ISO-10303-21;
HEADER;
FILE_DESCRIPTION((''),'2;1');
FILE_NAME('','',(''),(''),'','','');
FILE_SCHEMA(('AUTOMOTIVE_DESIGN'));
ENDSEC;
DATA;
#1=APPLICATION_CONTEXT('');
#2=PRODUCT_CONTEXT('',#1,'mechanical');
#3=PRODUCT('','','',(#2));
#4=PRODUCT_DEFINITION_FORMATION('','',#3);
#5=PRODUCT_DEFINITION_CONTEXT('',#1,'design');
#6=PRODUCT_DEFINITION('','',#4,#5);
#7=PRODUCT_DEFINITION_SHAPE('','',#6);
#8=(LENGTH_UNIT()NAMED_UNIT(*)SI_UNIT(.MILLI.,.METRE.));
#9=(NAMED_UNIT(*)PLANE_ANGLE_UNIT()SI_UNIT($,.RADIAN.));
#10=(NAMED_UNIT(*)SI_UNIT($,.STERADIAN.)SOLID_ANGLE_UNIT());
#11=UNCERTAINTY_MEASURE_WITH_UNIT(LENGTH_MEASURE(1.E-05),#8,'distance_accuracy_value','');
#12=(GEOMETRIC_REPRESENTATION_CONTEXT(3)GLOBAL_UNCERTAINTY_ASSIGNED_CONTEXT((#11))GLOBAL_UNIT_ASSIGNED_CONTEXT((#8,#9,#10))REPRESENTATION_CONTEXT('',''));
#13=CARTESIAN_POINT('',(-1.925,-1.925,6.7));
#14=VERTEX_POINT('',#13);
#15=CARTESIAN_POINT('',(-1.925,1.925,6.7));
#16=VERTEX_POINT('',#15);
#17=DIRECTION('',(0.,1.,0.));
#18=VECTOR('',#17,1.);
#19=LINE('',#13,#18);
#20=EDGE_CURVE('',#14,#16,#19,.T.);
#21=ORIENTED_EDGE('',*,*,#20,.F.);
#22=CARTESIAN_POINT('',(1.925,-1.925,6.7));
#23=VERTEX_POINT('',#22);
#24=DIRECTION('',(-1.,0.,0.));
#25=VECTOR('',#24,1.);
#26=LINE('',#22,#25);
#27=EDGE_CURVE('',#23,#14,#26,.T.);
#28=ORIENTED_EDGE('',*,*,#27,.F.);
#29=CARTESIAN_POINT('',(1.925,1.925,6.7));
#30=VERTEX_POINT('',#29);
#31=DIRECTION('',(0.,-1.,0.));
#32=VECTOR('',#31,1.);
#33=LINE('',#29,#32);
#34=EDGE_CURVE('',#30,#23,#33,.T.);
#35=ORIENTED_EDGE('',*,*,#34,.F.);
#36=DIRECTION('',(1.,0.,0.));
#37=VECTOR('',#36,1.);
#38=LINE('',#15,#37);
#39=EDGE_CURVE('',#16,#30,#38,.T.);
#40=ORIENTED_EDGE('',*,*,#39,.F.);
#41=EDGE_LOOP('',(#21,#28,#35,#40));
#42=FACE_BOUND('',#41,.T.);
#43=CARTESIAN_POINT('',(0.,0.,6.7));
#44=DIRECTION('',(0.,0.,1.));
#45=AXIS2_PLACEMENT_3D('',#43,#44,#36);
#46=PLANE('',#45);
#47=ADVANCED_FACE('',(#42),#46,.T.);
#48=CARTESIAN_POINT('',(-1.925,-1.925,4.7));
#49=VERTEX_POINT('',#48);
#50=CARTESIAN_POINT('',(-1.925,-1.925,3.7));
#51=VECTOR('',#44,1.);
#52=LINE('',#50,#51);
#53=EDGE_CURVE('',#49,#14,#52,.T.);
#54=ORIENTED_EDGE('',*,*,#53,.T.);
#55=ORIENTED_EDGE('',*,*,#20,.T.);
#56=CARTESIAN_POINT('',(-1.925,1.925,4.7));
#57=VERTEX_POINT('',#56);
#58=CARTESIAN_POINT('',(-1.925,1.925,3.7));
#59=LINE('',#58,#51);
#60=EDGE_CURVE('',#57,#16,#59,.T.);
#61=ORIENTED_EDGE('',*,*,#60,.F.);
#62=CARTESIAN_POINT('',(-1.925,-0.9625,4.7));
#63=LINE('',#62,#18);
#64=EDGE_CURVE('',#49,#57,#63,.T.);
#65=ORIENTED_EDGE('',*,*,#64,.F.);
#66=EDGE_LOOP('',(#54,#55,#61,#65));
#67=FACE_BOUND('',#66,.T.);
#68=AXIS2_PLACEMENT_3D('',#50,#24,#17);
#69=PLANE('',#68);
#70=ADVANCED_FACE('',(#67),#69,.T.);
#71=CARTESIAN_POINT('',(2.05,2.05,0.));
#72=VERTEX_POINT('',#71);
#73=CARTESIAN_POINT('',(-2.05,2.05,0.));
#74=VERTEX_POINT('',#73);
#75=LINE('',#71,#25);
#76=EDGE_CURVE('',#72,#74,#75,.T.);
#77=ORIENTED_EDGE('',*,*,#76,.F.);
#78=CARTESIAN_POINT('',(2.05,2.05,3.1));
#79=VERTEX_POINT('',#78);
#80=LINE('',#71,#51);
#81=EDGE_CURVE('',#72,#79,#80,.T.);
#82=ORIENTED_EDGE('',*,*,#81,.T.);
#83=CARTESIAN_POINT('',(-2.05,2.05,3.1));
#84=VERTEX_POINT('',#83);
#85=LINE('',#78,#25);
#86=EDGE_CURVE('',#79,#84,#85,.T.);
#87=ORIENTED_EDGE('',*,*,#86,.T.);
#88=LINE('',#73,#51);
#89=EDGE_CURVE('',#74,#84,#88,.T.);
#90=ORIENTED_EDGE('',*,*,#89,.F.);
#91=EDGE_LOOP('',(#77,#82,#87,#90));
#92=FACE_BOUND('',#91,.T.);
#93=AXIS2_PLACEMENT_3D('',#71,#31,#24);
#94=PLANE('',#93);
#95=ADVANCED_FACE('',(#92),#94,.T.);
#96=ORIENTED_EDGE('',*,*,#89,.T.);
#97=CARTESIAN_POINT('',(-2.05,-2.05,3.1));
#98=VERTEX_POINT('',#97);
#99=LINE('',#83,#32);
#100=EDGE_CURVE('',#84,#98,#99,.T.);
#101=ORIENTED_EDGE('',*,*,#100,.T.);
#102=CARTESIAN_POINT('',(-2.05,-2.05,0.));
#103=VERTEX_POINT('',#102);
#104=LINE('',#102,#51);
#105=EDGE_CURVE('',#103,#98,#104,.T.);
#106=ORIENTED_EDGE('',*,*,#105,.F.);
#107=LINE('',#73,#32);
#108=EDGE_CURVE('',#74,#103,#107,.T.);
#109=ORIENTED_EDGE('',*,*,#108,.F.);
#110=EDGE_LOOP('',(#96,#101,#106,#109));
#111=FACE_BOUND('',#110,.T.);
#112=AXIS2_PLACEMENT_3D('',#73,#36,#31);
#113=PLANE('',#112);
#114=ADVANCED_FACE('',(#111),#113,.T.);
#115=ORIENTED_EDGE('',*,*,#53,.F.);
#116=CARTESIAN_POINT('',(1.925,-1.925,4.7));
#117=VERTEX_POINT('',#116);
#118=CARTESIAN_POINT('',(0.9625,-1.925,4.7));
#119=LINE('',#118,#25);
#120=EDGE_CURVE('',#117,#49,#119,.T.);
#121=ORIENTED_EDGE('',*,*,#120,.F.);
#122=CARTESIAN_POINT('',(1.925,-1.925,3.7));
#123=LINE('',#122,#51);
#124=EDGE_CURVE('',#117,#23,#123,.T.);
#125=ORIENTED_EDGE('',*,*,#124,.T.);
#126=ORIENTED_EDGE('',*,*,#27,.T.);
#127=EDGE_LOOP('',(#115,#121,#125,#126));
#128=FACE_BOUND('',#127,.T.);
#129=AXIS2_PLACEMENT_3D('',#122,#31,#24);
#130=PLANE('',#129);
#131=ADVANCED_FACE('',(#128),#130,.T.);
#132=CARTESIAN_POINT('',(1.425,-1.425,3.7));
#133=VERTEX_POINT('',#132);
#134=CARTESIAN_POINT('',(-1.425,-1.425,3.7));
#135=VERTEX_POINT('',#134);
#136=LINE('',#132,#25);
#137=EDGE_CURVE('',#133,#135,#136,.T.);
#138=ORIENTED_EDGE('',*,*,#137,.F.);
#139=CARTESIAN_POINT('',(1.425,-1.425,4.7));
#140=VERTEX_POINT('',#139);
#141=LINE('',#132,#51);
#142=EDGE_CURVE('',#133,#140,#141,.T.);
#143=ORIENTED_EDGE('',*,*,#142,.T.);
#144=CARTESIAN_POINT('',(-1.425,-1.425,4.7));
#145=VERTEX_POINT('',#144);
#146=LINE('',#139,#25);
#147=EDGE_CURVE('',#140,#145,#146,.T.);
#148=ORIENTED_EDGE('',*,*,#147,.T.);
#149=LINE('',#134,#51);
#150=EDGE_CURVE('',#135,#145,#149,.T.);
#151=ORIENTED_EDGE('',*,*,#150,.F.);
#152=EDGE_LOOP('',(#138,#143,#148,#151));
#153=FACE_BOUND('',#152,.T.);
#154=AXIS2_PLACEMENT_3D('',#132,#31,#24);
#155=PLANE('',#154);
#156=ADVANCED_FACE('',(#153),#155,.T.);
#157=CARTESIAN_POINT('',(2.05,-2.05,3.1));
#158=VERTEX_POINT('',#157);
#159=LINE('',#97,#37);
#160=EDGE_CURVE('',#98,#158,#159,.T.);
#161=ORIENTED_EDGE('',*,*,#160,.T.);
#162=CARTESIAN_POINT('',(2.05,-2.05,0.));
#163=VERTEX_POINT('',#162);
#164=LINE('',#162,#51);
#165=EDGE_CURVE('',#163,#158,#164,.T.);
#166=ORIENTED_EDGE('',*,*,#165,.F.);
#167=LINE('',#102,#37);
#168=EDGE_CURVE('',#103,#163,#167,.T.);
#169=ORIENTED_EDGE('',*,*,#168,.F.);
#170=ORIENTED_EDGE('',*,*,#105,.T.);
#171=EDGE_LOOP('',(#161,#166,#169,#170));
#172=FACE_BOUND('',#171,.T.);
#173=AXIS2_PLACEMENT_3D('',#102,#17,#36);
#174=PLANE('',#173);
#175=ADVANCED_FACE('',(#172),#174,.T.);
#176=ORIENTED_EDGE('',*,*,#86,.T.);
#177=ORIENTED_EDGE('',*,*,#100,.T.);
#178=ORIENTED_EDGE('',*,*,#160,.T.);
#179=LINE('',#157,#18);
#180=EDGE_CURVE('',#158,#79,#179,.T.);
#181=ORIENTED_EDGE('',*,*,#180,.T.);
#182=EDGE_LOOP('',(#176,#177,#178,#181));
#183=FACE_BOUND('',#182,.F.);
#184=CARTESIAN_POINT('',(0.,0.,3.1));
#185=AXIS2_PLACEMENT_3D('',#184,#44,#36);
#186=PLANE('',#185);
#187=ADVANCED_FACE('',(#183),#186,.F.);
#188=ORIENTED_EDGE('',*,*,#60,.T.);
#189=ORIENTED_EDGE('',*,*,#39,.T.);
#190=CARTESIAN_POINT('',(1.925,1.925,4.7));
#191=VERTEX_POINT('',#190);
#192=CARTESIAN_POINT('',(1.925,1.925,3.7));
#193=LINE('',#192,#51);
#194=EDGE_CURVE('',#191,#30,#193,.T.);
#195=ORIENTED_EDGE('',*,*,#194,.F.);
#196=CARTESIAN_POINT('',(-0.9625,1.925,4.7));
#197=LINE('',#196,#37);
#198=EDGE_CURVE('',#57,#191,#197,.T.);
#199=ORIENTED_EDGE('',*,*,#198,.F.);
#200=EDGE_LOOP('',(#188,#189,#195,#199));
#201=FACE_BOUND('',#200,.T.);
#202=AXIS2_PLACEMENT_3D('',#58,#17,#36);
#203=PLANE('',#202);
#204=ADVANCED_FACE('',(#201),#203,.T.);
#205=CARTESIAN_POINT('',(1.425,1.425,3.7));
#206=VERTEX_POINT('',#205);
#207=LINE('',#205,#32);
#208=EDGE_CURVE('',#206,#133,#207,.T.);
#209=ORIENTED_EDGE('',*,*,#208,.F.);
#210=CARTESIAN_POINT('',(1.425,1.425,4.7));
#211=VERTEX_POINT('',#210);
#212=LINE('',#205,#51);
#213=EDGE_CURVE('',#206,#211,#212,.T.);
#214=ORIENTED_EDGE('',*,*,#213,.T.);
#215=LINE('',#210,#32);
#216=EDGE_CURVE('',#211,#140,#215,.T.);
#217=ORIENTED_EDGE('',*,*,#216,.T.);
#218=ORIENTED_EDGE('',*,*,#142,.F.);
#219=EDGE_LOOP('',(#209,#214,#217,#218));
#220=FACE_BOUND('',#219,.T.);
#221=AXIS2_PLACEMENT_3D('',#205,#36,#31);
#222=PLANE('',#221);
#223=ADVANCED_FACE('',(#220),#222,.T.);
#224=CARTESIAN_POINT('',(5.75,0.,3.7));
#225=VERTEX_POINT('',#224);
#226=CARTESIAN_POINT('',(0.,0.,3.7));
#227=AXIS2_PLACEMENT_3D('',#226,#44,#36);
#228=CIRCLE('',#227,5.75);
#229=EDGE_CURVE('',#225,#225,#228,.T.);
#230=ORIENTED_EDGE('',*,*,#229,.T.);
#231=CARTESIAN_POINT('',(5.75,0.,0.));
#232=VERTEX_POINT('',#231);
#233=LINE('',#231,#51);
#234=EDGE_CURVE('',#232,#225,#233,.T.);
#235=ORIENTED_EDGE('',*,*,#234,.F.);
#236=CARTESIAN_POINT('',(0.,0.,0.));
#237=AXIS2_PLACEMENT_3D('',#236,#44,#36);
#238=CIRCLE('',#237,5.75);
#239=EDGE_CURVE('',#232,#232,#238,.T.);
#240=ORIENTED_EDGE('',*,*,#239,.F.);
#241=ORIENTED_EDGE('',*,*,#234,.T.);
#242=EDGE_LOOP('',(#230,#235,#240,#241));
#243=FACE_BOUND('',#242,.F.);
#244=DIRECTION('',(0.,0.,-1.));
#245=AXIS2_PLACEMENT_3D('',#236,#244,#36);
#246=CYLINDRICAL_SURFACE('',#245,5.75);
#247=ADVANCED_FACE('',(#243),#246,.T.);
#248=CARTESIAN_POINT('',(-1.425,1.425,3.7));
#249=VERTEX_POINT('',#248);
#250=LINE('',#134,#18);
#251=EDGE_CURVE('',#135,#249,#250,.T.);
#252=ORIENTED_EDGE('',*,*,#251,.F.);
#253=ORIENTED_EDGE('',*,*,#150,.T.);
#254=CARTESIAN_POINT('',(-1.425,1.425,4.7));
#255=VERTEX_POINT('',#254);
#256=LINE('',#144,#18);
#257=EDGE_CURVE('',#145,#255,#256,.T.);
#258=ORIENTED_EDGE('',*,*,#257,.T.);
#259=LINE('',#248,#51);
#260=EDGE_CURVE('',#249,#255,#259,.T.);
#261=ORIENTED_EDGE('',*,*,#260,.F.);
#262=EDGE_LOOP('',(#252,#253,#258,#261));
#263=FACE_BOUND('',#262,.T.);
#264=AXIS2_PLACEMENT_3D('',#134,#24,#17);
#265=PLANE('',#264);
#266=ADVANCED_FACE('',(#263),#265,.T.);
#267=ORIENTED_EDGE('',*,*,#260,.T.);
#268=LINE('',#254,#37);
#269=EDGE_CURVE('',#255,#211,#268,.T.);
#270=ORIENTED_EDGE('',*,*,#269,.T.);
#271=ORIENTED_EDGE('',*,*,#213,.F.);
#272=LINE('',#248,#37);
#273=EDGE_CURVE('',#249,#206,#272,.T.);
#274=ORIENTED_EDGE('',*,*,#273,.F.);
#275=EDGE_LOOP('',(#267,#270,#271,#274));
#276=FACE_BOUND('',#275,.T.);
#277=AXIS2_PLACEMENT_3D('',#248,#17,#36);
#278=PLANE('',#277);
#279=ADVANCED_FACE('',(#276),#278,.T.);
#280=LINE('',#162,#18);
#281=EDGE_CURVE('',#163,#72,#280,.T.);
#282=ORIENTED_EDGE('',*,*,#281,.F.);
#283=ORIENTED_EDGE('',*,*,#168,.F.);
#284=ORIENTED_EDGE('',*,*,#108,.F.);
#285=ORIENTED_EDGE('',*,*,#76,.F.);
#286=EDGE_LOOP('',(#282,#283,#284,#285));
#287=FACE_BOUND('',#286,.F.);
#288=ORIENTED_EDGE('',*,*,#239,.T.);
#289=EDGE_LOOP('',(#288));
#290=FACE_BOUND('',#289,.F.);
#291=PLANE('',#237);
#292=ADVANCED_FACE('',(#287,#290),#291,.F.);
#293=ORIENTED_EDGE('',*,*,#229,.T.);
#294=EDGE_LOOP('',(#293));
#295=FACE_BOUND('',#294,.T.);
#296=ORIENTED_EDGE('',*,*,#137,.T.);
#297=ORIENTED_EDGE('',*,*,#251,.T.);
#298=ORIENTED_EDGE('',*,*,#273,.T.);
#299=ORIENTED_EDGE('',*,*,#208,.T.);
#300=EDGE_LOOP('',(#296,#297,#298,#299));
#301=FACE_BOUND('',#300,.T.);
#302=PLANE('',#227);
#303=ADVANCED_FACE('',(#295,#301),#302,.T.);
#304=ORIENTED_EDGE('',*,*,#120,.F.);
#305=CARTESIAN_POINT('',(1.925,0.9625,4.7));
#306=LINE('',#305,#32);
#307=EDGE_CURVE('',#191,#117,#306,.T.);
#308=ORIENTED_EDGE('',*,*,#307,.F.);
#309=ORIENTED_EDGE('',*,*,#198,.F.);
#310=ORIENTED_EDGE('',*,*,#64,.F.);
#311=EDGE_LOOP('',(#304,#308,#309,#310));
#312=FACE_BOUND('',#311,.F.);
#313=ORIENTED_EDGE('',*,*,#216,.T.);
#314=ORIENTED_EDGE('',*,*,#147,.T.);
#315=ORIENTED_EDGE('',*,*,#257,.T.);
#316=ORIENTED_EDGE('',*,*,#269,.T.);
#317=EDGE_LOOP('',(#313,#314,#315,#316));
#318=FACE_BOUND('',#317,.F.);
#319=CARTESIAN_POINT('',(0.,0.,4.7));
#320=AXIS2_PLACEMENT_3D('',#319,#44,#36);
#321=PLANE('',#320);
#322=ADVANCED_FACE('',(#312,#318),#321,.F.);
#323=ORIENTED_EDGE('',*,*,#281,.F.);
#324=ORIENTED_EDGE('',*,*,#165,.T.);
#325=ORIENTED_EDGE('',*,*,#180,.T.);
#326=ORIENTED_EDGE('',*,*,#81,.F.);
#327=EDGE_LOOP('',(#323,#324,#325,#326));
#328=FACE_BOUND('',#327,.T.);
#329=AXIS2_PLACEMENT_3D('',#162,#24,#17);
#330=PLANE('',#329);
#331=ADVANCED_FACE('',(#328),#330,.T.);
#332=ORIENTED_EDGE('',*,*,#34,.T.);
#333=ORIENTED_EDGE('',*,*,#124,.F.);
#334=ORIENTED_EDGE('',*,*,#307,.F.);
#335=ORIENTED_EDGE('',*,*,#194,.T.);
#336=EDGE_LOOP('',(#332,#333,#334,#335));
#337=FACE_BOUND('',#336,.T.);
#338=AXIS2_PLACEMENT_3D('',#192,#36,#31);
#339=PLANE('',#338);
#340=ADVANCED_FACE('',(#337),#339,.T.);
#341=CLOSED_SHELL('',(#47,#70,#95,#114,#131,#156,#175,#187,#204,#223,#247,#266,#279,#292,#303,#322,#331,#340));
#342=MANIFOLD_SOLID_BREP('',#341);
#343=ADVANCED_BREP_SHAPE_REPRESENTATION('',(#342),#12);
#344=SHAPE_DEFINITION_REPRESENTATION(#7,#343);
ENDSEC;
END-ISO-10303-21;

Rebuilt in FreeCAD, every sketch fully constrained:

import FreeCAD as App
import Part
import Sketcher


def add_polygon(sketch, points):
    """Adds a closed chain of lines whose ends are joined by coincident constraints."""
    first, n = sketch.GeometryCount, len(points)
    for a, b in zip(points, points[1:] + points[:1]):
        sketch.addGeometry(Part.LineSegment(App.Vector(*a, 0), App.Vector(*b, 0)), False)
    for i in range(n):
        sketch.addConstraint(Sketcher.Constraint("Coincident", first + i, 2, first + (i + 1) % n, 1))

doc = App.newDocument("Part")
params = doc.addObject("Spreadsheet::Sheet", "Params")
for row, (alias, value) in enumerate([
    ("sketch1_diameter", "11.5 mm"),
    ("pad1_length", "3.7 mm"),
    ("sketch2_width", "4.1 mm"),
    ("pocket1_length", "3.1 mm"),
    ("sketch3_width", "3.85 mm"),
    ("pad2_length", "3 mm"),
    ("sketch4_width", "4.1 mm"),
    ("sketch4_width2", "2.85 mm"),
    ("pocket2_length", "1 mm"),
], start=1):
    params.set(f"A{row}", alias)
    params.set(f"B{row}", "=" + value)
    params.setAlias(f"B{row}", alias)

body = doc.addObject("PartDesign::Body", "Body")

sketch1 = doc.addObject("Sketcher::SketchObject", "Sketch")
body.addObject(sketch1)
sketch1.AttachmentSupport = (doc.XY_Plane, [""])
sketch1.MapMode = "FlatFace"
sketch1.addGeometry(Part.Circle(App.Vector(0, 0, 0), App.Vector(0, 0, 1), 5.75), False)
sketch1.addConstraint(Sketcher.Constraint("Coincident", 0, 3, -1, 1))
sketch1.addConstraint(Sketcher.Constraint("Diameter", 0, 11.5))
sketch1.setExpression("Constraints[1]", "Params.sketch1_diameter")
pad1 = doc.addObject("PartDesign::Pad", "Pad")
body.addObject(pad1)
pad1.Profile = sketch1
pad1.setExpression("Length", "Params.pad1_length")

sketch2 = doc.addObject("Sketcher::SketchObject", "Sketch001")
body.addObject(sketch2)
sketch2.AttachmentSupport = (doc.XY_Plane, [""])
sketch2.MapMode = "FlatFace"
add_polygon(sketch2, [(-2.05, 2.05), (-2.05, -2.05), (2.05, -2.05), (2.05, 2.05)])
sketch2.addConstraint(Sketcher.Constraint("Vertical", 0))
sketch2.addConstraint(Sketcher.Constraint("Horizontal", 1))
sketch2.addConstraint(Sketcher.Constraint("Vertical", 2))
sketch2.addConstraint(Sketcher.Constraint("Horizontal", 3))
sketch2.addConstraint(Sketcher.Constraint("Symmetric", 0, 2, 2, 2, -1, 1))
sketch2.addConstraint(Sketcher.Constraint("Equal", 3, 0))
sketch2.addConstraint(Sketcher.Constraint("DistanceX", 1, 1, 1, 2, 4.1))
sketch2.setExpression("Constraints[10]", "Params.sketch2_width")
pocket1 = doc.addObject("PartDesign::Pocket", "Pocket")
body.addObject(pocket1)
pocket1.Profile = sketch2
pocket1.setExpression("Length", "Params.pocket1_length")
pocket1.Reversed = True

sketch3 = doc.addObject("Sketcher::SketchObject", "Sketch002")
body.addObject(sketch3)
sketch3.AttachmentSupport = (doc.XY_Plane, [""])
sketch3.MapMode = "FlatFace"
sketch3.AttachmentOffset = App.Placement(App.Vector(0, 0, 3.7), App.Rotation())
add_polygon(sketch3, [(-1.925, -1.925), (1.925, -1.925), (1.925, 1.925), (-1.925, 1.925)])
sketch3.addConstraint(Sketcher.Constraint("Horizontal", 0))
sketch3.addConstraint(Sketcher.Constraint("Vertical", 1))
sketch3.addConstraint(Sketcher.Constraint("Horizontal", 2))
sketch3.addConstraint(Sketcher.Constraint("Vertical", 3))
sketch3.addConstraint(Sketcher.Constraint("Symmetric", 0, 2, 2, 2, -1, 1))
sketch3.addConstraint(Sketcher.Constraint("Equal", 2, 1))
sketch3.addConstraint(Sketcher.Constraint("DistanceX", 0, 1, 0, 2, 3.85))
sketch3.setExpression("Constraints[10]", "Params.sketch3_width")
pad2 = doc.addObject("PartDesign::Pad", "Pad001")
body.addObject(pad2)
pad2.Profile = sketch3
pad2.setExpression("Length", "Params.pad2_length")

sketch4 = doc.addObject("Sketcher::SketchObject", "Sketch003")
body.addObject(sketch4)
sketch4.AttachmentSupport = (doc.XY_Plane, [""])
sketch4.MapMode = "FlatFace"
sketch4.AttachmentOffset = App.Placement(App.Vector(0, 0, 3.7), App.Rotation())
add_polygon(sketch4, [(-2.05, 2.05), (-2.05, -2.05), (2.05, -2.05), (2.05, 2.05)])
add_polygon(sketch4, [(-1.425, -1.425), (-1.425, 1.425), (1.425, 1.425), (1.425, -1.425)])
sketch4.addConstraint(Sketcher.Constraint("Vertical", 0))
sketch4.addConstraint(Sketcher.Constraint("Horizontal", 1))
sketch4.addConstraint(Sketcher.Constraint("Vertical", 2))
sketch4.addConstraint(Sketcher.Constraint("Horizontal", 3))
sketch4.addConstraint(Sketcher.Constraint("Vertical", 4))
sketch4.addConstraint(Sketcher.Constraint("Horizontal", 5))
sketch4.addConstraint(Sketcher.Constraint("Vertical", 6))
sketch4.addConstraint(Sketcher.Constraint("Horizontal", 7))
sketch4.addConstraint(Sketcher.Constraint("Symmetric", 0, 2, 2, 2, -1, 1))
sketch4.addConstraint(Sketcher.Constraint("Symmetric", 4, 2, 6, 2, -1, 1))
sketch4.addConstraint(Sketcher.Constraint("Equal", 3, 0))
sketch4.addConstraint(Sketcher.Constraint("Equal", 7, 4))
sketch4.addConstraint(Sketcher.Constraint("DistanceX", 1, 1, 1, 2, 4.1))
sketch4.addConstraint(Sketcher.Constraint("DistanceX", 5, 1, 5, 2, 2.85))
sketch4.setExpression("Constraints[20]", "Params.sketch4_width")
sketch4.setExpression("Constraints[21]", "Params.sketch4_width2")
pocket2 = doc.addObject("PartDesign::Pocket", "Pocket001")
body.addObject(pocket2)
pocket2.Profile = sketch4
pocket2.setExpression("Length", "Params.pocket2_length")
pocket2.Reversed = True

doc.recompute()
